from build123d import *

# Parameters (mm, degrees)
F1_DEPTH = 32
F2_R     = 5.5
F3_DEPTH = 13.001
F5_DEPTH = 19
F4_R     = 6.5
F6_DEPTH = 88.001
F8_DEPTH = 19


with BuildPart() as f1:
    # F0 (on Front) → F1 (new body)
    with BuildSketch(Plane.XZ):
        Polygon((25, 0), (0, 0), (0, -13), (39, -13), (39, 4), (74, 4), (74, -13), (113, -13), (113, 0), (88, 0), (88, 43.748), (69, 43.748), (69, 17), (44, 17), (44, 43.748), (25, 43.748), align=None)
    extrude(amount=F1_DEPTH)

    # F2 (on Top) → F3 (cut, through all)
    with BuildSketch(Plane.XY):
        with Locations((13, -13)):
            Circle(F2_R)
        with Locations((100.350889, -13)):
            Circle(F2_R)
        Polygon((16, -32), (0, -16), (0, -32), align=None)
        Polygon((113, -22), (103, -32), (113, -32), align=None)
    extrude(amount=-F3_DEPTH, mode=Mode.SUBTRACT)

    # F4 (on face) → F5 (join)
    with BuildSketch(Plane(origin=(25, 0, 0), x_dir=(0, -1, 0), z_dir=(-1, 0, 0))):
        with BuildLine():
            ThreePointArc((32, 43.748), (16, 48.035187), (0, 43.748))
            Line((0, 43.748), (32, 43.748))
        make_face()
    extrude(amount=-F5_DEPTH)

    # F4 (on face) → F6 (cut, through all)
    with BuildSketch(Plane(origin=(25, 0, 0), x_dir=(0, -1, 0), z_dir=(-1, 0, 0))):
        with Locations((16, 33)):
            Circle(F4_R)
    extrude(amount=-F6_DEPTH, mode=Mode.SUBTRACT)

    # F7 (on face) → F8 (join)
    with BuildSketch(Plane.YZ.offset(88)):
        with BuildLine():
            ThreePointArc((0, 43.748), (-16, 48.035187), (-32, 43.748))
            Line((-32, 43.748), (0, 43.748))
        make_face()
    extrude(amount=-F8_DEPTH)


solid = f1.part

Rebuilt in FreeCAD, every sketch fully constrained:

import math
import FreeCAD as App
import Part
import Sketcher

V = App.Vector

doc = App.newDocument("Part")
body = doc.addObject("PartDesign::Body", "Body")

# Sketch on XZ plane
sketch1 = doc.addObject("Sketcher::SketchObject", "Sketch")
body.addObject(sketch1)
sketch1.AttachmentSupport = (doc.XZ_Plane, [""])
sketch1.MapMode = "FlatFace"
sketch1.addGeometry(Part.LineSegment(V(25, 0, 0), V(0, 0, 0)), False)
sketch1.addGeometry(Part.LineSegment(V(0, 0, 0), V(0, -13, 0)), False)
sketch1.addGeometry(Part.LineSegment(V(0, -13, 0), V(39, -13, 0)), False)
sketch1.addGeometry(Part.LineSegment(V(39, -13, 0), V(39, 4, 0)), False)
sketch1.addGeometry(Part.LineSegment(V(39, 4, 0), V(74, 4, 0)), False)
sketch1.addGeometry(Part.LineSegment(V(74, 4, 0), V(74, -13, 0)), False)
sketch1.addGeometry(Part.LineSegment(V(74, -13, 0), V(113, -13, 0)), False)
sketch1.addGeometry(Part.LineSegment(V(113, -13, 0), V(113, 0, 0)), False)
sketch1.addGeometry(Part.LineSegment(V(113, 0, 0), V(88, 0, 0)), False)
sketch1.addGeometry(Part.LineSegment(V(88, 0, 0), V(88, 44, 0)), False)
sketch1.addGeometry(Part.LineSegment(V(88, 44, 0), V(69, 44, 0)), False)
sketch1.addGeometry(Part.LineSegment(V(69, 44, 0), V(69, 17, 0)), False)
sketch1.addGeometry(Part.LineSegment(V(69, 17, 0), V(44, 17, 0)), False)
sketch1.addGeometry(Part.LineSegment(V(44, 17, 0), V(44, 44, 0)), False)
sketch1.addGeometry(Part.LineSegment(V(44, 44, 0), V(25, 44, 0)), False)
sketch1.addGeometry(Part.LineSegment(V(25, 44, 0), V(25, 0, 0)), False)
sketch1.addConstraint(Sketcher.Constraint("Coincident", 0, 2, 1, 1))
sketch1.addConstraint(Sketcher.Constraint("Coincident", 1, 2, 2, 1))
sketch1.addConstraint(Sketcher.Constraint("Coincident", 2, 2, 3, 1))
sketch1.addConstraint(Sketcher.Constraint("Coincident", 3, 2, 4, 1))
sketch1.addConstraint(Sketcher.Constraint("Coincident", 4, 2, 5, 1))
sketch1.addConstraint(Sketcher.Constraint("Coincident", 5, 2, 6, 1))
sketch1.addConstraint(Sketcher.Constraint("Coincident", 6, 2, 7, 1))
sketch1.addConstraint(Sketcher.Constraint("Coincident", 7, 2, 8, 1))
sketch1.addConstraint(Sketcher.Constraint("Coincident", 8, 2, 9, 1))
sketch1.addConstraint(Sketcher.Constraint("Coincident", 9, 2, 10, 1))
sketch1.addConstraint(Sketcher.Constraint("Coincident", 10, 2, 11, 1))
sketch1.addConstraint(Sketcher.Constraint("Coincident", 11, 2, 12, 1))
sketch1.addConstraint(Sketcher.Constraint("Coincident", 12, 2, 13, 1))
sketch1.addConstraint(Sketcher.Constraint("Coincident", 13, 2, 14, 1))
sketch1.addConstraint(Sketcher.Constraint("Coincident", 14, 2, 15, 1))
sketch1.addConstraint(Sketcher.Constraint("Coincident", 15, 2, 0, 1))
sketch1.addConstraint(Sketcher.Constraint("Horizontal", 0))
sketch1.addConstraint(Sketcher.Constraint("Vertical", 1))
sketch1.addConstraint(Sketcher.Constraint("Horizontal", 2))
sketch1.addConstraint(Sketcher.Constraint("Vertical", 3))
sketch1.addConstraint(Sketcher.Constraint("Horizontal", 4))
sketch1.addConstraint(Sketcher.Constraint("Vertical", 5))
sketch1.addConstraint(Sketcher.Constraint("Horizontal", 6))
sketch1.addConstraint(Sketcher.Constraint("Vertical", 7))
sketch1.addConstraint(Sketcher.Constraint("Horizontal", 8))
sketch1.addConstraint(Sketcher.Constraint("Vertical", 9))
sketch1.addConstraint(Sketcher.Constraint("Horizontal", 10))
sketch1.addConstraint(Sketcher.Constraint("Vertical", 11))
sketch1.addConstraint(Sketcher.Constraint("Horizontal", 12))
sketch1.addConstraint(Sketcher.Constraint("Vertical", 13))
sketch1.addConstraint(Sketcher.Constraint("Horizontal", 14))
sketch1.addConstraint(Sketcher.Constraint("Vertical", 15))
sketch1.addConstraint(Sketcher.Constraint("Coincident", 0, 2, -1, 1))
sketch1.addConstraint(Sketcher.Constraint("PointOnObject", 7, 2, -1))
sketch1.addConstraint(Sketcher.Constraint("Horizontal", 2, 2, 5, 2))
sketch1.addConstraint(Sketcher.Constraint("Horizontal", 10, 2, 13, 2))
sketch1.addConstraint(Sketcher.Constraint("Equal", 2, 6))
sketch1.addConstraint(Sketcher.Constraint("Equal", 0, 8))
sketch1.addConstraint(Sketcher.Constraint("Equal", 8, 12))
sketch1.addConstraint(Sketcher.Constraint("Equal", 10, 14))
sketch1.addConstraint(Sketcher.Constraint("DistanceX", 0, 2, 0, 1, 25.0))
sketch1.addConstraint(Sketcher.Constraint("DistanceX", 2, 1, 2, 2, 39.0))
sketch1.addConstraint(Sketcher.Constraint("DistanceX", 4, 1, 4, 2, 35.0))
sketch1.addConstraint(Sketcher.Constraint("DistanceY", 1, 2, 1, 1, 13.0))
sketch1.addConstraint(Sketcher.Constraint("DistanceY", 3, 1, 3, 2, 17.0))
sketch1.addConstraint(Sketcher.Constraint("DistanceY", -1, 1, 11, 2, 17.0))
sketch1.addConstraint(Sketcher.Constraint("DistanceY", 9, 1, 9, 2, 43.748))
pad1 = doc.addObject("PartDesign::Pad", "Pad")
body.addObject(pad1)
pad1.Profile = sketch1
pad1.Length = 32

# Sketch on XY plane
sketch2 = doc.addObject("Sketcher::SketchObject", "Sketch001")
body.addObject(sketch2)
sketch2.AttachmentSupport = (doc.XY_Plane, [""])
sketch2.MapMode = "FlatFace"
sketch2.addGeometry(Part.Circle(V(13, -13, 0), V(0, 0, 1), 6), False)
sketch2.addGeometry(Part.Circle(V(100, -13, 0), V(0, 0, 1), 6), False)
sketch2.addGeometry(Part.LineSegment(V(16, -32, 0), V(0, -16, 0)), False)
sketch2.addGeometry(Part.LineSegment(V(0, -16, 0), V(0, -32, 0)), False)
sketch2.addGeometry(Part.LineSegment(V(0, -32, 0), V(16, -32, 0)), False)
sketch2.addGeometry(Part.LineSegment(V(113, -22, 0), V(103, -32, 0)), False)
sketch2.addGeometry(Part.LineSegment(V(103, -32, 0), V(113, -32, 0)), False)
sketch2.addGeometry(Part.LineSegment(V(113, -32, 0), V(113, -22, 0)), False)
sketch2.addConstraint(Sketcher.Constraint("Coincident", 2, 2, 3, 1))
sketch2.addConstraint(Sketcher.Constraint("Coincident", 3, 2, 4, 1))
sketch2.addConstraint(Sketcher.Constraint("Coincident", 4, 2, 2, 1))
sketch2.addConstraint(Sketcher.Constraint("Coincident", 5, 2, 6, 1))
sketch2.addConstraint(Sketcher.Constraint("Coincident", 6, 2, 7, 1))
sketch2.addConstraint(Sketcher.Constraint("Coincident", 7, 2, 5, 1))
sketch2.addConstraint(Sketcher.Constraint("Vertical", 3))
sketch2.addConstraint(Sketcher.Constraint("Horizontal", 4))
sketch2.addConstraint(Sketcher.Constraint("Horizontal", 6))
sketch2.addConstraint(Sketcher.Constraint("Vertical", 7))
sketch2.addConstraint(Sketcher.Constraint("Equal", 0, 1))
sketch2.addConstraint(Sketcher.Constraint("PointOnObject", 2, 2, -2))
sketch2.addConstraint(Sketcher.Constraint("Perpendicular", 2, 5))
sketch2.addConstraint(Sketcher.Constraint("Horizontal", 0, 3, 1, 3))
sketch2.addConstraint(Sketcher.Constraint("Horizontal", 4, 2, 5, 2))
sketch2.addConstraint(Sketcher.Constraint("Equal", 4, 3))
sketch2.addConstraint(Sketcher.Constraint("Diameter", 0, 11.0))
sketch2.addConstraint(Sketcher.Constraint("DistanceX", 4, 1, 4, 2, 16.0))
sketch2.addConstraint(Sketcher.Constraint("DistanceX", 6, 1, 6, 2, 10.0))
sketch2.addConstraint(Sketcher.Constraint("DistanceX", -1, 1, 0, 3, 13.0))
sketch2.addConstraint(Sketcher.Constraint("DistanceY", 0, 3, -1, 1, 13.0))
sketch2.addConstraint(Sketcher.Constraint("DistanceY", 2, 2, -1, 1, 16.0))
sketch2.addConstraint(Sketcher.Constraint("DistanceX", -1, 1, 5, 2, 103.0))
sketch2.addConstraint(Sketcher.Constraint("DistanceX", -1, 1, 1, 3, 100.350889))
pocket1 = doc.addObject("PartDesign::Pocket", "Pocket")
body.addObject(pocket1)
pocket1.Profile = sketch2
pocket1.Type = "ThroughAll"

# Sketch on YZ plane
sketch3 = doc.addObject("Sketcher::SketchObject", "Sketch002")
body.addObject(sketch3)
sketch3.AttachmentSupport = (doc.YZ_Plane, [""])
sketch3.MapMode = "FlatFace"
sketch3.AttachmentOffset = App.Placement(V(0, 0, 25), App.Rotation())
sketch3.addGeometry(Part.ArcOfCircle(Part.Circle(V(-16, 16, 0), V(0, 0, 1), 32), math.radians(60), math.radians(120)), False)
sketch3.addGeometry(Part.LineSegment(V(0, 44, 0), V(-32, 44, 0)), False)
sketch3.addConstraint(Sketcher.Constraint("Coincident", 0, 1, 1, 1))
sketch3.addConstraint(Sketcher.Constraint("Coincident", 1, 2, 0, 2))
sketch3.addConstraint(Sketcher.Constraint("Horizontal", 1))
sketch3.addConstraint(Sketcher.Constraint("PointOnObject", 0, 1, -2))
sketch3.addConstraint(Sketcher.Constraint("Radius", 0, 32.000001))
sketch3.addConstraint(Sketcher.Constraint("DistanceX", 1, 2, 1, 1, 32.0))
sketch3.addConstraint(Sketcher.Constraint("DistanceY", -1, 1, 0, 1, 43.748))
pad2 = doc.addObject("PartDesign::Pad", "Pad001")
body.addObject(pad2)
pad2.Profile = sketch3
pad2.Length = 19

# Sketch on YZ plane
sketch4 = doc.addObject("Sketcher::SketchObject", "Sketch003")
body.addObject(sketch4)
sketch4.AttachmentSupport = (doc.YZ_Plane, [""])
sketch4.MapMode = "FlatFace"
sketch4.AttachmentOffset = App.Placement(V(0, 0, 25), App.Rotation())
sketch4.addGeometry(Part.Circle(V(-16, 33, 0), V(0, 0, 1), 6), False)
sketch4.addConstraint(Sketcher.Constraint("Diameter", 0, 13.0))
sketch4.addConstraint(Sketcher.Constraint("DistanceX", 0, 3, -1, 1, 16.0))
sketch4.addConstraint(Sketcher.Constraint("DistanceY", -1, 1, 0, 3, 33.0))
pocket2 = doc.addObject("PartDesign::Pocket", "Pocket001")
body.addObject(pocket2)
pocket2.Profile = sketch4
pocket2.Type = "ThroughAll"
pocket2.Reversed = True

# Sketch on YZ plane
sketch5 = doc.addObject("Sketcher::SketchObject", "Sketch004")
body.addObject(sketch5)
sketch5.AttachmentSupport = (doc.YZ_Plane, [""])
sketch5.MapMode = "FlatFace"
sketch5.AttachmentOffset = App.Placement(V(0, 0, 88), App.Rotation())
sketch5.addGeometry(Part.ArcOfCircle(Part.Circle(V(-16, 16, 0), V(0, 0, 1), 32), math.radians(60), math.radians(120)), False)
sketch5.addGeometry(Part.LineSegment(V(-32, 44, 0), V(0, 44, 0)), False)
sketch5.addConstraint(Sketcher.Constraint("Coincident", 0, 1, 1, 2))
sketch5.addConstraint(Sketcher.Constraint("Coincident", 1, 1, 0, 2))
sketch5.addConstraint(Sketcher.Constraint("Horizontal", 1))
sketch5.addConstraint(Sketcher.Constraint("PointOnObject", 0, 1, -2))
sketch5.addConstraint(Sketcher.Constraint("Radius", 0, 32.000001))
sketch5.addConstraint(Sketcher.Constraint("DistanceX", 1, 1, 1, 2, 32.0))
sketch5.addConstraint(Sketcher.Constraint("DistanceY", -1, 1, 0, 1, 43.748))
pad3 = doc.addObject("PartDesign::Pad", "Pad002")
body.addObject(pad3)
pad3.Profile = sketch5
pad3.Length = 19
pad3.Reversed = True

doc.recompute()
